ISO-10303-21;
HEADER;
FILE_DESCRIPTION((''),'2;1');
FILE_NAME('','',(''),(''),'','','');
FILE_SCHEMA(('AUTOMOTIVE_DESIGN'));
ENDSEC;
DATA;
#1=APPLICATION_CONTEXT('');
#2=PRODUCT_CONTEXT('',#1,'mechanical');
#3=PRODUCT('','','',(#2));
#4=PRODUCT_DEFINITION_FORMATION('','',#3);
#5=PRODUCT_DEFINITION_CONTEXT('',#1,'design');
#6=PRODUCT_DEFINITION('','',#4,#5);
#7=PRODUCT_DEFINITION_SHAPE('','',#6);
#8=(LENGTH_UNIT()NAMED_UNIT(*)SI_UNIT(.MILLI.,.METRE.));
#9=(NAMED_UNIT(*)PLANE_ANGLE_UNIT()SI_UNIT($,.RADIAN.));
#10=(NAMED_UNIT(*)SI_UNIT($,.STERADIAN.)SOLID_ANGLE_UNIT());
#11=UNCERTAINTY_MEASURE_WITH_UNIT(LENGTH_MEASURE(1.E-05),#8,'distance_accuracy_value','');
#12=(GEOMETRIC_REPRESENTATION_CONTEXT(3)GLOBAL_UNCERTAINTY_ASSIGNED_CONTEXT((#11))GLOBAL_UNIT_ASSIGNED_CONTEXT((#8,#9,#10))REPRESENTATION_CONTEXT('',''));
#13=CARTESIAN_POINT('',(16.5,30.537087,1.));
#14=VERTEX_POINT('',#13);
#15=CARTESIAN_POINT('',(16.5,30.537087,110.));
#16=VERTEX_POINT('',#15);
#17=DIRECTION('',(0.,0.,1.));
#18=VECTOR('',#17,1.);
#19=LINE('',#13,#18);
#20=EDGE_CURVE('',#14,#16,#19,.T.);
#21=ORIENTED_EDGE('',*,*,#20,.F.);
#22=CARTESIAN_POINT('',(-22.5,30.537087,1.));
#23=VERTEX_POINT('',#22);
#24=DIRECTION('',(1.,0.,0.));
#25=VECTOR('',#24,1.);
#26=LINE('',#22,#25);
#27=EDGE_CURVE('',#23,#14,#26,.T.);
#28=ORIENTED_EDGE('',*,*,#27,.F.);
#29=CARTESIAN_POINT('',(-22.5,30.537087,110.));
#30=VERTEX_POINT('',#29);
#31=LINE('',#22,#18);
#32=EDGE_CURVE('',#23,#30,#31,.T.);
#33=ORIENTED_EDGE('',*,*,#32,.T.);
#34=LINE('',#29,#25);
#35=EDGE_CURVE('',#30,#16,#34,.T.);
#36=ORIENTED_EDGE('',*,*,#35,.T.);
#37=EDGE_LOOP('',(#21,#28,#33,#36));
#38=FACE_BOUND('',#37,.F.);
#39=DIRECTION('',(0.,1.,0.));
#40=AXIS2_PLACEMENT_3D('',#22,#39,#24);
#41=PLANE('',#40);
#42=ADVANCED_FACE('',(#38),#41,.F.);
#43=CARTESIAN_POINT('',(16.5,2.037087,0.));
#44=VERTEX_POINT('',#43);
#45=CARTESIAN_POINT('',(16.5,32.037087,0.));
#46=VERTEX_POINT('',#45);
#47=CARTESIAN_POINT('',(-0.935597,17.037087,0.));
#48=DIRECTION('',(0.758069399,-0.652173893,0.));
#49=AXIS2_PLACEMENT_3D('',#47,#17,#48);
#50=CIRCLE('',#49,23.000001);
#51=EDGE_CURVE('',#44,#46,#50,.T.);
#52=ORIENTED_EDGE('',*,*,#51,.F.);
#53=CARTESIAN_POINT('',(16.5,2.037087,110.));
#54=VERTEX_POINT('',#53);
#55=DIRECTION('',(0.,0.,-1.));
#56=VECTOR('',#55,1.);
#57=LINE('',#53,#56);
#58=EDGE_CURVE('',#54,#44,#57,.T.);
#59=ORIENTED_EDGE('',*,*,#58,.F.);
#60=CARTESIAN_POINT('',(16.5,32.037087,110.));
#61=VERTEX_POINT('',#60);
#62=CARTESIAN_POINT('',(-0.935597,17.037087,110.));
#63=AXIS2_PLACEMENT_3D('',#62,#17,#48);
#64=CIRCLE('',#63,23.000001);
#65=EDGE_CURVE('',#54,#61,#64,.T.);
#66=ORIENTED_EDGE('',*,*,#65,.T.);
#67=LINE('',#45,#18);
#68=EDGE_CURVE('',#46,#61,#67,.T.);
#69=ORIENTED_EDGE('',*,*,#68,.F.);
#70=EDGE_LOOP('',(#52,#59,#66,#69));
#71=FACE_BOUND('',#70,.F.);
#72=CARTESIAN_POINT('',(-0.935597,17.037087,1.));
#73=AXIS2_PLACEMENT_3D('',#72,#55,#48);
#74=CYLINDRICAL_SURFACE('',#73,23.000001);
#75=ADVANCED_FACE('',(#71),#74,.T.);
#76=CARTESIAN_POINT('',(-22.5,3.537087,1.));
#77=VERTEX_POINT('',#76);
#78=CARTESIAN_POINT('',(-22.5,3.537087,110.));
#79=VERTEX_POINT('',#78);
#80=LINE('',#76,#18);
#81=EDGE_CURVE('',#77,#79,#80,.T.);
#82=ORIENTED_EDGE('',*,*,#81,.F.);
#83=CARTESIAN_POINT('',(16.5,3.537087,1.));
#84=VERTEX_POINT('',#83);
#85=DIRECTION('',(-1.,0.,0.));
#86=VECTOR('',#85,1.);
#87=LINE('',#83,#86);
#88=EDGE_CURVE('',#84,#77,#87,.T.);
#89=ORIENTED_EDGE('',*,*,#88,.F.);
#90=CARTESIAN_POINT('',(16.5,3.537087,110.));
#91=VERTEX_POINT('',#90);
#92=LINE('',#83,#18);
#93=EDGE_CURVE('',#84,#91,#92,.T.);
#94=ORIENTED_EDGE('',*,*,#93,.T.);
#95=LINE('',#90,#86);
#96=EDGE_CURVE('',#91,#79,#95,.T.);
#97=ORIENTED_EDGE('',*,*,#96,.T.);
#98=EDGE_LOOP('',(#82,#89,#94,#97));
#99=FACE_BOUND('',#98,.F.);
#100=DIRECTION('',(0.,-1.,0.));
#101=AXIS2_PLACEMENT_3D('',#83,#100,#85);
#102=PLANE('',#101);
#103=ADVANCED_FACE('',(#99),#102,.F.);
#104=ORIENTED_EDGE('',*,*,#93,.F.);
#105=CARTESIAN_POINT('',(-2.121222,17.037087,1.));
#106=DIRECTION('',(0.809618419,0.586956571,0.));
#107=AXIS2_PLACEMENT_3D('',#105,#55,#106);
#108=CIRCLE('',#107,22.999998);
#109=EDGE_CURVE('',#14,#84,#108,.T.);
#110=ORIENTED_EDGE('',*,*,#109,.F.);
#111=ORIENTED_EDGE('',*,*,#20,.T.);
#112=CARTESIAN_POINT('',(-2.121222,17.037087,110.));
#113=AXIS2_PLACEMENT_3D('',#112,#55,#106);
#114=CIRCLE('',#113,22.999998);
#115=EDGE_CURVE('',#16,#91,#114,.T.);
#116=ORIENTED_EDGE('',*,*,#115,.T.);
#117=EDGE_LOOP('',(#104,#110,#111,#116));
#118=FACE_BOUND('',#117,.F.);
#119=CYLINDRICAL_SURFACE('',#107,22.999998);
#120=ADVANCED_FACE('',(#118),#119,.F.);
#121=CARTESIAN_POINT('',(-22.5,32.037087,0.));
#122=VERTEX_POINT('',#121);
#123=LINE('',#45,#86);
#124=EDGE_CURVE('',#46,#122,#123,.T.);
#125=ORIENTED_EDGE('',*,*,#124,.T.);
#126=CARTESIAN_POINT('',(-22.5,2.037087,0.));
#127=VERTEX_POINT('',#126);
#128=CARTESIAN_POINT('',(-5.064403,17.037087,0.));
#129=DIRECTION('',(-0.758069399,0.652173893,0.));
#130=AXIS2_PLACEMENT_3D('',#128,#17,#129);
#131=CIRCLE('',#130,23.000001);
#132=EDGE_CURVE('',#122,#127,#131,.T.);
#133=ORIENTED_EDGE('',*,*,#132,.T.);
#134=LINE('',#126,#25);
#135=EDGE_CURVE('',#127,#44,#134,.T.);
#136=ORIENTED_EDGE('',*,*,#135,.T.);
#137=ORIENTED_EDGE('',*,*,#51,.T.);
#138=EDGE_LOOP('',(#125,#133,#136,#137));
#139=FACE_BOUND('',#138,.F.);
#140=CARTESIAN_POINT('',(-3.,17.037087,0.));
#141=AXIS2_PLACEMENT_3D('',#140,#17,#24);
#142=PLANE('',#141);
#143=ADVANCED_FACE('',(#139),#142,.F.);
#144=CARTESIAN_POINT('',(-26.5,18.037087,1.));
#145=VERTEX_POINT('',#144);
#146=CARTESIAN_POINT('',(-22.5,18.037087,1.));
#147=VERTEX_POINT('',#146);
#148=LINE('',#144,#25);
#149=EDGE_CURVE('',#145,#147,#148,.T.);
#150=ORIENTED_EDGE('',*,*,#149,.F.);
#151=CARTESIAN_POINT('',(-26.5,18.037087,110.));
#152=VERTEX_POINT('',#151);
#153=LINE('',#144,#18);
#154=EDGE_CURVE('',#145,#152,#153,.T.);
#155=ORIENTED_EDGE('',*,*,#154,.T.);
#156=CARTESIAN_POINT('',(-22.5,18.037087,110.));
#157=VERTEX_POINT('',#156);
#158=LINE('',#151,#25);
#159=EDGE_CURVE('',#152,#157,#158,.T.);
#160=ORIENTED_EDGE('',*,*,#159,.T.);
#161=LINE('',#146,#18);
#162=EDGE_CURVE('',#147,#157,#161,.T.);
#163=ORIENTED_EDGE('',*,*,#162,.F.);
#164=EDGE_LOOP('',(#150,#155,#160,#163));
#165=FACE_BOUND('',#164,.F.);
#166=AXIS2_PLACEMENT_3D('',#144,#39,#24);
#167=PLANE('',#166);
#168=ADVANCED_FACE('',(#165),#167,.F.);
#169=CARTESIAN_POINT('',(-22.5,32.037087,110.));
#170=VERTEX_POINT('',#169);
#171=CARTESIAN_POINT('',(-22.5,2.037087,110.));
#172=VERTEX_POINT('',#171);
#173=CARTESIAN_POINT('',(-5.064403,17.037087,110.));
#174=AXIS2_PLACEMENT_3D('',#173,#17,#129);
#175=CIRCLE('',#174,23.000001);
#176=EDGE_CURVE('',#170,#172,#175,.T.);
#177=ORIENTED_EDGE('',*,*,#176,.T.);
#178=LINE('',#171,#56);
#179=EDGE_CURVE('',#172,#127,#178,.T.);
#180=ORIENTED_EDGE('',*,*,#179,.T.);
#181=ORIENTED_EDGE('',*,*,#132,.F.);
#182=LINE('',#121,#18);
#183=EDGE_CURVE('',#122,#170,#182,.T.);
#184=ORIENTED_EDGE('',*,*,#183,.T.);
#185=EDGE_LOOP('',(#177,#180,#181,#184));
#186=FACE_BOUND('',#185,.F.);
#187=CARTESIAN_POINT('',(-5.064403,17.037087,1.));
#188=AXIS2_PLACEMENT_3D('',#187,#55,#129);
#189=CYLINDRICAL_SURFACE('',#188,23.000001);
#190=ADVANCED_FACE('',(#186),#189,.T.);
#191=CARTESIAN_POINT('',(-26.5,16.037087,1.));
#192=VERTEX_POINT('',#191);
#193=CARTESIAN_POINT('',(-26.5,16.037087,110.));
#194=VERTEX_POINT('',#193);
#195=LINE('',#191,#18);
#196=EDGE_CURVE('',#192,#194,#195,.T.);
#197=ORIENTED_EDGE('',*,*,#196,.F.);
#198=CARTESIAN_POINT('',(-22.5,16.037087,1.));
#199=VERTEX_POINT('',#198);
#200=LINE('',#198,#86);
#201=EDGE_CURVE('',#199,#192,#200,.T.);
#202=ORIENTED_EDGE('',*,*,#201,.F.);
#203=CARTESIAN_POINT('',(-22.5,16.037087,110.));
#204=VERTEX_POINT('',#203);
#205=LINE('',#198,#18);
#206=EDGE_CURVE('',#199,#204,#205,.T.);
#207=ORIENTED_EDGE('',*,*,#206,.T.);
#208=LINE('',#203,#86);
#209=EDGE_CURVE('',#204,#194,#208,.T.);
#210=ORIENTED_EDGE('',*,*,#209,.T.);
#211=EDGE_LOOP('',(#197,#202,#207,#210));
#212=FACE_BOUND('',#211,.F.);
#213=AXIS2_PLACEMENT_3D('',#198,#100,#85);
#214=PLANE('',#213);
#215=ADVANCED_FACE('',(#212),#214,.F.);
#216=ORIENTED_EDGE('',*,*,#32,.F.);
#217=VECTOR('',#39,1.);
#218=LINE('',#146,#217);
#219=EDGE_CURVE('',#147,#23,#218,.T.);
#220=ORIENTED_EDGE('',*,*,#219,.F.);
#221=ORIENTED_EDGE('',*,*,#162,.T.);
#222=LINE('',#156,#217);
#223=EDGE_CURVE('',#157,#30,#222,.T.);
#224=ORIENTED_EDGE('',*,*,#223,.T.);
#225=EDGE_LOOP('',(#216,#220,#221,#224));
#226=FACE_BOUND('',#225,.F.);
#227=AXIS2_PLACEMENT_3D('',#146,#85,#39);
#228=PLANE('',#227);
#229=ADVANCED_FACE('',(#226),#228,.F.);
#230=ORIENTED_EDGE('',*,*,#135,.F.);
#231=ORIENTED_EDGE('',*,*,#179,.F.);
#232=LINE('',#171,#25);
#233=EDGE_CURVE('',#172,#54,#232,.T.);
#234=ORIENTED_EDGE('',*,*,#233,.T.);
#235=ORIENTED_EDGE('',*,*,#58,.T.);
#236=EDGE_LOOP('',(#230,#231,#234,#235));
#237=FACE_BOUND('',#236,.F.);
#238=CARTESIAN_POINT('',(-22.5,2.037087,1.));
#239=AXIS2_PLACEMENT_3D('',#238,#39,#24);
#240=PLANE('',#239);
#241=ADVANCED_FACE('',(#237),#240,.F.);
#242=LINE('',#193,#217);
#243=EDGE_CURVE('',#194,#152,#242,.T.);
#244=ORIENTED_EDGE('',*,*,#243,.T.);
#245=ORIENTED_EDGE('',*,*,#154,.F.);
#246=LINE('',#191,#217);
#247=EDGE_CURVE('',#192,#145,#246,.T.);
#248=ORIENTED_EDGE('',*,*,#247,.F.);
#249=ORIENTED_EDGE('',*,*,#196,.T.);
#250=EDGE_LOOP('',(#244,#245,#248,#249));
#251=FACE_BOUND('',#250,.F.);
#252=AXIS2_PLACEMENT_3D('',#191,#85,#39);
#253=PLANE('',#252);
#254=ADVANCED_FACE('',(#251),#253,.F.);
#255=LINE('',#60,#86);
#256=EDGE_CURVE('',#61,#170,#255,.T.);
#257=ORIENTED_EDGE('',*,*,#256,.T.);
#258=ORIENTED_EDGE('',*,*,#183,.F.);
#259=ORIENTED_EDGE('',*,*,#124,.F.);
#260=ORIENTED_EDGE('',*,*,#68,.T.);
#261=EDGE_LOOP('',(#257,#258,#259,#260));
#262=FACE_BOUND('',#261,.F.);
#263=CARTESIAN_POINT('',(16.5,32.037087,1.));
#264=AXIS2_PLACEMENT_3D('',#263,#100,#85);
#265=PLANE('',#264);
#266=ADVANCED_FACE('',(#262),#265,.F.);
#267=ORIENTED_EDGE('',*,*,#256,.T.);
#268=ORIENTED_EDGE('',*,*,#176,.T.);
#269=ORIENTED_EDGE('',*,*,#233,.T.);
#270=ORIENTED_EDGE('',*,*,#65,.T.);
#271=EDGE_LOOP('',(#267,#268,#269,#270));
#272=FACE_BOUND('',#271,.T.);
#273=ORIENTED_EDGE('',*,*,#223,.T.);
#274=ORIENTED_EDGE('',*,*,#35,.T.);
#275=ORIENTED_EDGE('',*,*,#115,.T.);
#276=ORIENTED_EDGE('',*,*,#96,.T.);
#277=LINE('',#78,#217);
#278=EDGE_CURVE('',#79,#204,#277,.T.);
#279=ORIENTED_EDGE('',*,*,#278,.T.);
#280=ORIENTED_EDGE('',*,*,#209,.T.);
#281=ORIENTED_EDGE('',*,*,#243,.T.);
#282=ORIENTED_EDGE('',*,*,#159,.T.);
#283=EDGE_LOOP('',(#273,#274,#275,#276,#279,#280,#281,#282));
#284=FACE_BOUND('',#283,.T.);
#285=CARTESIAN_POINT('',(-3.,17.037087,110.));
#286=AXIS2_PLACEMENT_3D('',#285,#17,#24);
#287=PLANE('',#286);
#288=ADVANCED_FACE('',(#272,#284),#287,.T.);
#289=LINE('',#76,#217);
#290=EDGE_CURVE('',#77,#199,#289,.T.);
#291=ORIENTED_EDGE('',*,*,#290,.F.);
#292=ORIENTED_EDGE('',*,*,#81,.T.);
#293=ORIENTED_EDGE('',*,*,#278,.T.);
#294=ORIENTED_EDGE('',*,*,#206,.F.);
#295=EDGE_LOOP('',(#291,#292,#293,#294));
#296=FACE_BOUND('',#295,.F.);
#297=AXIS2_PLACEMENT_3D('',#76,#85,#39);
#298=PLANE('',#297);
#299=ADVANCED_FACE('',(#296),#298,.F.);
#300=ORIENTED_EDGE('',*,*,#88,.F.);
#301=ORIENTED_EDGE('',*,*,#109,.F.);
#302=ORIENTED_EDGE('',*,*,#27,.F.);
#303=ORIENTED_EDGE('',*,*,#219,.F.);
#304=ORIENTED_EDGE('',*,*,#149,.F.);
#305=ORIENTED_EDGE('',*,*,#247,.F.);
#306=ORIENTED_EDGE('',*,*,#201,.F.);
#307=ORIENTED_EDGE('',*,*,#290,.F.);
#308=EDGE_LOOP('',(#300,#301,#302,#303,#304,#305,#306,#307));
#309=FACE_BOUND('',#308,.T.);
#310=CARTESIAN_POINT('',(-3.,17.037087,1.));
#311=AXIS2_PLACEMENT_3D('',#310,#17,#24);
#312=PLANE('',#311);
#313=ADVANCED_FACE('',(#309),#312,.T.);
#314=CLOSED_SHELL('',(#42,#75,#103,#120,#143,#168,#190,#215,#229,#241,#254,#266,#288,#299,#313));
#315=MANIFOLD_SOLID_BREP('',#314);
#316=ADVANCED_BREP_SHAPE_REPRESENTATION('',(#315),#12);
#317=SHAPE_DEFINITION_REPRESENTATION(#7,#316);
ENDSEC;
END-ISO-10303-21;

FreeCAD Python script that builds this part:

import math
import FreeCAD as App
import Part
import Sketcher

doc = App.newDocument("Part")
body = doc.addObject("PartDesign::Body", "Body")

# Sketch on XY plane
sketch1 = doc.addObject("Sketcher::SketchObject", "Sketch")
body.addObject(sketch1)
sketch1.AttachmentSupport = (doc.XY_Plane, [""])
sketch1.MapMode = "FlatFace"
sketch1.addGeometry([
    Part.LineSegment(App.Vector(16.5, 32.037087, 0), App.Vector(-22.5, 32.037087, 0)),
    Part.ArcOfCircle(Part.Circle(App.Vector(-5.064403, 17.037087, 0), App.Vector(0, 0, 1), 23.000001), math.radians(139.294295), math.radians(220.705705)),
    Part.LineSegment(App.Vector(-22.5, 2.037087, 0), App.Vector(16.5, 2.037087, 0)),
    Part.ArcOfCircle(Part.Circle(App.Vector(-0.935597, 17.037087, 0), App.Vector(0, 0, 1), 23.000001), math.radians(-40.705705), math.radians(40.705705)),
], False)
sketch1.addConstraint([
    Sketcher.Constraint("Coincident", 0, 2, 1, 1),
    Sketcher.Constraint("Coincident", 1, 2, 2, 1),
    Sketcher.Constraint("Coincident", 2, 2, 3, 1),
    Sketcher.Constraint("Coincident", 3, 2, 0, 1),
    Sketcher.Constraint("Horizontal", 0),
    Sketcher.Constraint("Horizontal", 2),
    Sketcher.Constraint("Equal", 1, 3),
    Sketcher.Constraint("Horizontal", 1, 3, 3, 3),
    Sketcher.Constraint("Vertical", 0, 2, 1, 2),
    Sketcher.Constraint("Radius", 1, 23.000001),
    Sketcher.Constraint("DistanceX", 0, 2, 0, 1, 39.0),
    Sketcher.Constraint("DistanceY", 1, 3, 0, 2, 15.0),
    Sketcher.Constraint("DistanceX", 0, 2, -1, 1, 22.5),
    Sketcher.Constraint("DistanceY", -1, 1, 1, 3, 17.037087),
])
pad1 = doc.addObject("PartDesign::Pad", "Pad")
body.addObject(pad1)
pad1.Profile = sketch1
pad1.Length = 1

# Sketch on XY plane
sketch2 = doc.addObject("Sketcher::SketchObject", "Sketch001")
body.addObject(sketch2)
sketch2.AttachmentSupport = (doc.XY_Plane, [""])
sketch2.MapMode = "FlatFace"
sketch2.AttachmentOffset = App.Placement(App.Vector(0, 0, 1), App.Rotation())
sketch2.addGeometry([
    Part.ArcOfCircle(Part.Circle(App.Vector(-0.935597, 17.037087, 0), App.Vector(0, 0, 1), 23.000001), math.radians(-40.705705), math.radians(40.705705)),  # 0
    Part.LineSegment(App.Vector(16.5, 32.037087, 0), App.Vector(-22.5, 32.037087, 0)),  # 1
    Part.ArcOfCircle(Part.Circle(App.Vector(-5.064403, 17.037087, 0), App.Vector(0, 0, 1), 23.000001), math.radians(139.294295), math.radians(220.705705)),  # 2
    Part.LineSegment(App.Vector(-22.5, 2.037087, 0), App.Vector(16.5, 2.037087, 0)),  # 3
    Part.LineSegment(App.Vector(-26.5, 18.037087, 0), App.Vector(-22.5, 18.037087, 0)),  # 4
    Part.LineSegment(App.Vector(-22.5, 18.037087, 0), App.Vector(-22.5, 30.537087, 0)),  # 5
    Part.LineSegment(App.Vector(-22.5, 30.537087, 0), App.Vector(16.5, 30.537087, 0)),  # 6
    Part.ArcOfCircle(Part.Circle(App.Vector(-2.121222, 17.037087, 0), App.Vector(0, 0, 1), 22.999998), math.radians(-35.941333), math.radians(35.941333)),  # 7
    Part.LineSegment(App.Vector(16.5, 3.537087, 0), App.Vector(-22.5, 3.537087, 0)),  # 8
    Part.LineSegment(App.Vector(-22.5, 3.537087, 0), App.Vector(-22.5, 16.037087, 0)),  # 9
    Part.LineSegment(App.Vector(-22.5, 16.037087, 0), App.Vector(-26.5, 16.037087, 0)),  # 10
    Part.LineSegment(App.Vector(-26.5, 16.037087, 0), App.Vector(-26.5, 18.037087, 0)),  # 11
], False)
sketch2.addConstraint([
    Sketcher.Constraint("Coincident", 0, 2, 1, 1),
    Sketcher.Constraint("Coincident", 1, 2, 2, 1),
    Sketcher.Constraint("Coincident", 2, 2, 3, 1),
    Sketcher.Constraint("Coincident", 3, 2, 0, 1),
    Sketcher.Constraint("Coincident", 4, 2, 5, 1),
    Sketcher.Constraint("Coincident", 5, 2, 6, 1),
    Sketcher.Constraint("Coincident", 6, 2, 7, 2),
    Sketcher.Constraint("Coincident", 7, 1, 8, 1),
    Sketcher.Constraint("Coincident", 8, 2, 9, 1),
    Sketcher.Constraint("Coincident", 9, 2, 10, 1),
    Sketcher.Constraint("Coincident", 10, 2, 11, 1),
    Sketcher.Constraint("Coincident", 11, 2, 4, 1),
    Sketcher.Constraint("Horizontal", 1),
    Sketcher.Constraint("Horizontal", 3),
    Sketcher.Constraint("Horizontal", 4),
    Sketcher.Constraint("Vertical", 5),
    Sketcher.Constraint("Horizontal", 6),
    Sketcher.Constraint("Horizontal", 8),
    Sketcher.Constraint("Vertical", 9),
    Sketcher.Constraint("Horizontal", 10),
    Sketcher.Constraint("Vertical", 11),
    Sketcher.Constraint("Equal", 0, 2),
    Sketcher.Constraint("Horizontal", 0, 3, 2, 3),
    Sketcher.Constraint("Horizontal", 2, 3, 7, 3),
    Sketcher.Constraint("Vertical", 1, 2, 2, 2),
    Sketcher.Constraint("Vertical", 2, 2, 4, 2),
    Sketcher.Constraint("Vertical", 3, 2, 6, 2),
    Sketcher.Constraint("Vertical", 6, 2, 7, 1),
    Sketcher.Constraint("Vertical", 5, 2, 8, 2),
    Sketcher.Constraint("Equal", 5, 9),
    Sketcher.Constraint("Radius", 0, 23.000001),
    Sketcher.Constraint("Radius", 7, 22.999998),
    Sketcher.Constraint("DistanceX", 1, 2, 1, 1, 39.0),
    Sketcher.Constraint("DistanceX", 4, 1, 4, 2, 4.0),
    Sketcher.Constraint("DistanceY", 11, 1, 11, 2, 2.0),
    Sketcher.Constraint("DistanceY", 5, 1, 5, 2, 12.5),
    Sketcher.Constraint("DistanceY", 0, 3, 0, 2, 15.0),
    Sketcher.Constraint("DistanceX", -1, 1, 0, 2, 16.5),
    Sketcher.Constraint("DistanceY", -1, 1, 0, 3, 17.037087),
])
pad2 = doc.addObject("PartDesign::Pad", "Pad001")
body.addObject(pad2)
pad2.Profile = sketch2
pad2.Length = 109

doc.recompute()
